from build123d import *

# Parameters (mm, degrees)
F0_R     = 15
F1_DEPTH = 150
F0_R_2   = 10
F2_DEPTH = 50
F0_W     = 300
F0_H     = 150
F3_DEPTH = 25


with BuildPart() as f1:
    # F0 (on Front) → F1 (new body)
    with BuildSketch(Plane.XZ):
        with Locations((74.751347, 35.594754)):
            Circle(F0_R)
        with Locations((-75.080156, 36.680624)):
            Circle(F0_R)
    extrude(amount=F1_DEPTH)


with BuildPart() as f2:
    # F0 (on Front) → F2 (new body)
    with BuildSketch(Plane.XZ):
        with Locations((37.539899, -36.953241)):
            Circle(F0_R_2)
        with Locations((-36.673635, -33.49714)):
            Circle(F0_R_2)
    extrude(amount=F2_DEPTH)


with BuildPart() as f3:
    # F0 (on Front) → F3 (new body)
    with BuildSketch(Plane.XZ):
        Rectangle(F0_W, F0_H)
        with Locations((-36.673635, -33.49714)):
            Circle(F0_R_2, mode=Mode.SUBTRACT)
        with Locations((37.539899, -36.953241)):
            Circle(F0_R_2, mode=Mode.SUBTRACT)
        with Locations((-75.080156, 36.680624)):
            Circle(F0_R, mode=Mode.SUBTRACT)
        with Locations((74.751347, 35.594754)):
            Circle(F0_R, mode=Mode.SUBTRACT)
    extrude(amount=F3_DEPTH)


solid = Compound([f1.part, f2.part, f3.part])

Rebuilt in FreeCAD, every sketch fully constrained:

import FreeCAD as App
import Part
import Sketcher

V = App.Vector

doc = App.newDocument("Part")
body = doc.addObject("PartDesign::Body", "Body")
body.AllowCompound = True

# Sketch on XZ plane
sketch1 = body.newObject("Sketcher::SketchObject", "Sketch")
sketch1.AttachmentSupport = (doc.getObject("XZ_Plane"), [""])
sketch1.MapMode = "FlatFace"
sketch1.addGeometry(Part.Circle(V(75, 36, 0), V(0, 0, 1), 15), False)
sketch1.addGeometry(Part.Circle(V(-75, 37, 0), V(0, 0, 1), 15), False)
sketch1.addConstraint(Sketcher.Constraint("Equal", 0, 1))
sketch1.addConstraint(Sketcher.Constraint("Diameter", 0, 30.0))
sketch1.addConstraint(Sketcher.Constraint("DistanceY", 0, 3, 1, 3, 1.08587))
sketch1.addConstraint(Sketcher.Constraint("DistanceX", -1, 1, 0, 3, 74.751347))
sketch1.addConstraint(Sketcher.Constraint("DistanceY", -1, 1, 0, 3, 35.594754))
sketch1.addConstraint(Sketcher.Constraint("DistanceX", 1, 3, -1, 1, 75.080156))
pad1 = body.newObject("PartDesign::Pad", "Pad")
pad1.Profile = sketch1
pad1.Length = 150
body2 = doc.addObject("PartDesign::Body", "Body001")
body2.AllowCompound = True

# Sketch on XZ plane
sketch2 = body2.newObject("Sketcher::SketchObject", "Sketch001")
sketch2.AttachmentSupport = (doc.getObject("XZ_Plane001"), [""])
sketch2.MapMode = "FlatFace"
sketch2.addGeometry(Part.Circle(V(38, -37, 0), V(0, 0, 1), 10), False)
sketch2.addGeometry(Part.Circle(V(-37, -33, 0), V(0, 0, 1), 10), False)
sketch2.addConstraint(Sketcher.Constraint("Equal", 0, 1))
sketch2.addConstraint(Sketcher.Constraint("Diameter", 0, 20.0))
sketch2.addConstraint(Sketcher.Constraint("DistanceX", -1, 1, 0, 3, 37.539899))
sketch2.addConstraint(Sketcher.Constraint("DistanceY", 0, 3, 1, 3, 3.456101))
sketch2.addConstraint(Sketcher.Constraint("DistanceY", 0, 3, -1, 1, 36.953241))
sketch2.addConstraint(Sketcher.Constraint("DistanceX", 1, 3, -1, 1, 36.673635))
pad2 = body2.newObject("PartDesign::Pad", "Pad001")
pad2.Profile = sketch2
pad2.Length = 50
body3 = doc.addObject("PartDesign::Body", "Body002")

# Sketch on XZ plane
sketch3 = body3.newObject("Sketcher::SketchObject", "Sketch002")
sketch3.AttachmentSupport = (doc.getObject("XZ_Plane002"), [""])
sketch3.MapMode = "FlatFace"
sketch3.addGeometry(Part.LineSegment(V(-150, 75, 0), V(-150, -75, 0)), False)
sketch3.addGeometry(Part.LineSegment(V(-150, -75, 0), V(150, -75, 0)), False)
sketch3.addGeometry(Part.LineSegment(V(150, -75, 0), V(150, 75, 0)), False)
sketch3.addGeometry(Part.LineSegment(V(150, 75, 0), V(-150, 75, 0)), False)
sketch3.addGeometry(Part.Circle(V(-37, -33, 0), V(0, 0, 1), 10), False)
sketch3.addGeometry(Part.Circle(V(38, -37, 0), V(0, 0, 1), 10), False)
sketch3.addGeometry(Part.Circle(V(-75, 37, 0), V(0, 0, 1), 15), False)
sketch3.addGeometry(Part.Circle(V(75, 36, 0), V(0, 0, 1), 15), False)
sketch3.addConstraint(Sketcher.Constraint("Coincident", 0, 2, 1, 1))
sketch3.addConstraint(Sketcher.Constraint("Coincident", 1, 2, 2, 1))
sketch3.addConstraint(Sketcher.Constraint("Coincident", 2, 2, 3, 1))
sketch3.addConstraint(Sketcher.Constraint("Coincident", 3, 2, 0, 1))
sketch3.addConstraint(Sketcher.Constraint("Vertical", 0))
sketch3.addConstraint(Sketcher.Constraint("Horizontal", 1))
sketch3.addConstraint(Sketcher.Constraint("Vertical", 2))
sketch3.addConstraint(Sketcher.Constraint("Horizontal", 3))
sketch3.addConstraint(Sketcher.Constraint("Equal", 4, 5))
sketch3.addConstraint(Sketcher.Constraint("Equal", 6, 7))
sketch3.addConstraint(Sketcher.Constraint("Symmetric", 0, 2, 2, 2, -1, 1))
sketch3.addConstraint(Sketcher.Constraint("Diameter", 4, 20.0))
sketch3.addConstraint(Sketcher.Constraint("Diameter", 6, 30.0))
sketch3.addConstraint(Sketcher.Constraint("DistanceX", 1, 1, 1, 2, 300.0))
sketch3.addConstraint(Sketcher.Constraint("DistanceY", 0, 2, 0, 1, 150.0))
sketch3.addConstraint(Sketcher.Constraint("DistanceX", -1, 1, 5, 3, 37.539899))
sketch3.addConstraint(Sketcher.Constraint("DistanceY", 5, 3, 4, 3, 3.456101))
sketch3.addConstraint(Sketcher.Constraint("DistanceY", 4, 3, -1, 1, 33.49714))
sketch3.addConstraint(Sketcher.Constraint("DistanceX", 6, 3, 4, 3, 38.406521))
sketch3.addConstraint(Sketcher.Constraint("DistanceX", 4, 3, 7, 3, 111.424982))
sketch3.addConstraint(Sketcher.Constraint("DistanceY", 7, 3, 6, 3, 1.08587))
sketch3.addConstraint(Sketcher.Constraint("DistanceX", 4, 3, -1, 1, 36.673635))
sketch3.addConstraint(Sketcher.Constraint("DistanceY", -1, 1, 6, 3, 36.680624))
pad3 = body3.newObject("PartDesign::Pad", "Pad002")
pad3.Profile = sketch3
pad3.Length = 25

doc.recompute()
